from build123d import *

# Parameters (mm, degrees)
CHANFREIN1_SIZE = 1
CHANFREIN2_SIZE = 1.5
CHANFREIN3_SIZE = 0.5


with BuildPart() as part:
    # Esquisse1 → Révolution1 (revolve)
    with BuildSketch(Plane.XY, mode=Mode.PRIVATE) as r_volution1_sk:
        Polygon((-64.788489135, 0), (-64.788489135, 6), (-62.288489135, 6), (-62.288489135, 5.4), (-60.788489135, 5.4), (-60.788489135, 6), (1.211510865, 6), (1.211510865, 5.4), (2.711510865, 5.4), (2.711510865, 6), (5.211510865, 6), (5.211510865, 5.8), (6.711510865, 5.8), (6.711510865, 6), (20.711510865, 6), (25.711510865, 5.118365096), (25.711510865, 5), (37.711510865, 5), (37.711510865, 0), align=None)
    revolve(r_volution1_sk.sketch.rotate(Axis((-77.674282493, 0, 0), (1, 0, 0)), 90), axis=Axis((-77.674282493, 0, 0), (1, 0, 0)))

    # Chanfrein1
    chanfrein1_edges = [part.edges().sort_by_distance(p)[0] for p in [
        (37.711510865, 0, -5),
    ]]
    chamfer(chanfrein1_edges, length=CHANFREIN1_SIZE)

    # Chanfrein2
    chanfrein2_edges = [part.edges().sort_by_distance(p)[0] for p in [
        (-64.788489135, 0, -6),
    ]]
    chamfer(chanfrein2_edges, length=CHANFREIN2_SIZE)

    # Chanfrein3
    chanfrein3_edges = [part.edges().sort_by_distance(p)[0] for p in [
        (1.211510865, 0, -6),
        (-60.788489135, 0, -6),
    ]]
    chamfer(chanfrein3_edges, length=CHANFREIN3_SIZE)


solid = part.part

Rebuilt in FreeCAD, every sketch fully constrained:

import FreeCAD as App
import Part
import Sketcher
Q = App.Units.Quantity


def edges_at(feature, points):
    """Names of the edges that pass closest to the given points."""
    edges = feature.Shape.Edges
    near = lambda p: min(range(len(edges)), key=lambda i: edges[i].distToShape(Part.Vertex(*p))[0])
    return sorted({f"Edge{near(p) + 1}" for p in points})

doc = App.newDocument("Part")
body = doc.addObject("PartDesign::Body", "Body")

# Sketch on XY plane
sketch1 = body.newObject("Sketcher::SketchObject", "Sketch")
sketch1.AttachmentSupport = (doc.getObject("XY_Plane"), [""])
sketch1.MapMode = "FlatFace"
sketch1.addGeometry([
    Part.LineSegment(App.Vector(-64.79, 6, 0), App.Vector(-64.79, 0, 0)),  # 0
    Part.LineSegment(App.Vector(-64.79, 0, 0), App.Vector(37.71, 0, 0)),  # 1
    Part.LineSegment(App.Vector(37.71, 0, 0), App.Vector(37.71, 5, 0)),  # 2
    Part.LineSegment(App.Vector(37.71, 5, 0), App.Vector(25.71, 5, 0)),  # 3
    Part.LineSegment(App.Vector(25.71, 5, 0), App.Vector(25.71, 5.12, 0)),  # 4
    Part.LineSegment(App.Vector(25.71, 5.12, 0), App.Vector(20.71, 6, 0)),  # 5
    Part.LineSegment(App.Vector(20.71, 6, 0), App.Vector(6.71, 6, 0)),  # 6
    Part.LineSegment(App.Vector(6.71, 6, 0), App.Vector(6.71, 5.8, 0)),  # 7
    Part.LineSegment(App.Vector(6.71, 5.8, 0), App.Vector(5.21, 5.8, 0)),  # 8
    Part.LineSegment(App.Vector(5.21, 5.8, 0), App.Vector(5.21, 6, 0)),  # 9
    Part.LineSegment(App.Vector(5.21, 6, 0), App.Vector(2.71, 6, 0)),  # 10
    Part.LineSegment(App.Vector(2.71, 6, 0), App.Vector(2.71, 5.4, 0)),  # 11
    Part.LineSegment(App.Vector(2.71, 5.4, 0), App.Vector(1.21, 5.4, 0)),  # 12
    Part.LineSegment(App.Vector(1.21, 5.4, 0), App.Vector(1.21, 6, 0)),  # 13
    Part.LineSegment(App.Vector(1.21, 6, 0), App.Vector(-60.79, 6, 0)),  # 14
    Part.LineSegment(App.Vector(-60.79, 6, 0), App.Vector(-60.79, 5.4, 0)),  # 15
    Part.LineSegment(App.Vector(-60.79, 5.4, 0), App.Vector(-62.29, 5.4, 0)),  # 16
    Part.LineSegment(App.Vector(-62.29, 5.4, 0), App.Vector(-62.29, 6, 0)),  # 17
    Part.LineSegment(App.Vector(-62.29, 6, 0), App.Vector(-64.79, 6, 0)),  # 18
], False)
sketch1.addConstraint([
    Sketcher.Constraint("Coincident", 0, 2, 1, 1),
    Sketcher.Constraint("Coincident", 1, 2, 2, 1),
    Sketcher.Constraint("Coincident", 2, 2, 3, 1),
    Sketcher.Constraint("Coincident", 3, 2, 4, 1),
    Sketcher.Constraint("Coincident", 4, 2, 5, 1),
    Sketcher.Constraint("Coincident", 5, 2, 6, 1),
    Sketcher.Constraint("Coincident", 6, 2, 7, 1),
    Sketcher.Constraint("Coincident", 7, 2, 8, 1),
    Sketcher.Constraint("Coincident", 8, 2, 9, 1),
    Sketcher.Constraint("Coincident", 9, 2, 10, 1),
    Sketcher.Constraint("Coincident", 10, 2, 11, 1),
    Sketcher.Constraint("Coincident", 11, 2, 12, 1),
    Sketcher.Constraint("Coincident", 12, 2, 13, 1),
    Sketcher.Constraint("Coincident", 13, 2, 14, 1),
    Sketcher.Constraint("Coincident", 14, 2, 15, 1),
    Sketcher.Constraint("Coincident", 15, 2, 16, 1),
    Sketcher.Constraint("Coincident", 16, 2, 17, 1),
    Sketcher.Constraint("Coincident", 17, 2, 18, 1),
    Sketcher.Constraint("Coincident", 18, 2, 0, 1),
    Sketcher.Constraint("Vertical", 0),
    Sketcher.Constraint("Horizontal", 1),
    Sketcher.Constraint("Vertical", 2),
    Sketcher.Constraint("Horizontal", 3),
    Sketcher.Constraint("Vertical", 4),
    Sketcher.Constraint("Horizontal", 6),
    Sketcher.Constraint("Vertical", 7),
    Sketcher.Constraint("Horizontal", 8),
    Sketcher.Constraint("Vertical", 9),
    Sketcher.Constraint("Horizontal", 10),
    Sketcher.Constraint("Vertical", 11),
    Sketcher.Constraint("Horizontal", 12),
    Sketcher.Constraint("Vertical", 13),
    Sketcher.Constraint("Horizontal", 14),
    Sketcher.Constraint("Vertical", 15),
    Sketcher.Constraint("Horizontal", 16),
    Sketcher.Constraint("Vertical", 17),
    Sketcher.Constraint("Horizontal", 18),
    Sketcher.Constraint("PointOnObject", 0, 2, -1),
    Sketcher.Constraint("Horizontal", 6, 2, 9, 2),
    Sketcher.Constraint("Horizontal", 10, 2, 13, 2),
    Sketcher.Constraint("Horizontal", 12, 2, 15, 2),
    Sketcher.Constraint("Horizontal", 14, 2, 17, 2),
    Sketcher.Constraint("Equal", 8, 12),
    Sketcher.Constraint("Equal", 12, 16),
    Sketcher.Constraint("Equal", 10, 18),
    Sketcher.Constraint("DistanceX", 3, 2, 3, 1, 12.0),
    Sketcher.Constraint("DistanceX", 6, 2, 6, 1, 14.0),
    Sketcher.Constraint("DistanceX", 14, 2, 14, 1, 62.0),
    Sketcher.Constraint("DistanceY", 0, 2, 0, 1, 6.0),
    Sketcher.Constraint("DistanceY", 2, 1, 2, 2, 5.0),
    Sketcher.Constraint("Angle", 5, Q("170 deg")),
    Sketcher.Constraint("DistanceX", 1, 1, 1, 2, 102.5),
    Sketcher.Constraint("DistanceX", 8, 2, 8, 1, 1.5),
    Sketcher.Constraint("DistanceX", 10, 2, 10, 1, 2.5),
    Sketcher.Constraint("DistanceY", 7, 2, 7, 1, 0.2),
    Sketcher.Constraint("DistanceY", 11, 2, 11, 1, 0.6),
    Sketcher.Constraint("DistanceX", 0, 2, -1, 1, 64.788489),
])
revolution = body.newObject("PartDesign::Revolution", "Revolution")
revolution.Profile = sketch1
revolution.ReferenceAxis = (sketch1, ["H_Axis"])
revolution.Angle = 360
doc.recompute()

chamfer = body.newObject("PartDesign::Chamfer", "Chamfer")
chamfer.Base = (revolution, edges_at(revolution, [(37.712, 0, -5)]))
chamfer.Size = 1
doc.recompute()

chamfer2 = body.newObject("PartDesign::Chamfer", "Chamfer001")
chamfer2.Base = (chamfer, edges_at(chamfer, [(-64.788, 0, -6)]))
chamfer2.Size = 1.5
doc.recompute()

chamfer3 = body.newObject("PartDesign::Chamfer", "Chamfer002")
chamfer3.Base = (chamfer2, edges_at(chamfer2, [(1.212, 0, -6), (-60.788, 0, -6)]))
chamfer3.Size = 0.5

doc.recompute()
